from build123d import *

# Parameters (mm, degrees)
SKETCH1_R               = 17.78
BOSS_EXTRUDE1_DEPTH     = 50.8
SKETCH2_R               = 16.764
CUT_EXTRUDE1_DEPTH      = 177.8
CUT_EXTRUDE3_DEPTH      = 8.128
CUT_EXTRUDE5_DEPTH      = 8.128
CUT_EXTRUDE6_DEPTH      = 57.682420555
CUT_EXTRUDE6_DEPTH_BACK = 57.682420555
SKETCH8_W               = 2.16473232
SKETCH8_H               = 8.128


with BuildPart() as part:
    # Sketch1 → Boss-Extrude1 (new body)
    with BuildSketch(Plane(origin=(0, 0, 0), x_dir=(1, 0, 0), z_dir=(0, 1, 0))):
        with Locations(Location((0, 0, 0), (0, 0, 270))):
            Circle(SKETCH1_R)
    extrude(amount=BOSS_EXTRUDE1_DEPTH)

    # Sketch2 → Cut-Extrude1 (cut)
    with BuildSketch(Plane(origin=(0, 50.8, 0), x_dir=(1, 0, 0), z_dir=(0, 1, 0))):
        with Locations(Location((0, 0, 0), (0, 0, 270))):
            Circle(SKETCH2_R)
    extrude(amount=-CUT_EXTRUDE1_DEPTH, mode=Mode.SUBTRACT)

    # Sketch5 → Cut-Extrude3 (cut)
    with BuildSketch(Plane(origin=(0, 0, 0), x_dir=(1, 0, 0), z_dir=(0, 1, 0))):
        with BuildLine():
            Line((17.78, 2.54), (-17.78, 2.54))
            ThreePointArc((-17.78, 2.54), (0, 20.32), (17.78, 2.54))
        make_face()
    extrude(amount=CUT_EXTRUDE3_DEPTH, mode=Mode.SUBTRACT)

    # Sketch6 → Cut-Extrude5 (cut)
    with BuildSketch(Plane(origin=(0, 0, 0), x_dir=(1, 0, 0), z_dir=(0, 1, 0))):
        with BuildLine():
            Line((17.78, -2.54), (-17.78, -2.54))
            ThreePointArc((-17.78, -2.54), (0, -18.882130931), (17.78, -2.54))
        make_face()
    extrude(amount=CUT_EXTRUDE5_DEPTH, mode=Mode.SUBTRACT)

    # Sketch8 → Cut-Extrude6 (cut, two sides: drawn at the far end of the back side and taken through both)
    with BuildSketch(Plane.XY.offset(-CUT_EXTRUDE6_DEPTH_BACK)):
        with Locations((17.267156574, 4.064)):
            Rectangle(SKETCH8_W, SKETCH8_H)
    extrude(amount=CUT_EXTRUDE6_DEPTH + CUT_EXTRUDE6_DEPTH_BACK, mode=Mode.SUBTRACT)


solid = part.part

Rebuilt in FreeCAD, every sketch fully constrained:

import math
import FreeCAD as App
import Part
import Sketcher
from FreeCAD import Vector
Q = App.Units.Quantity

doc = App.newDocument("Part")
body = doc.addObject("PartDesign::Body", "Body")

# Sketch on XZ plane
sketch1 = doc.addObject("Sketcher::SketchObject", "Sketch")
body.addObject(sketch1)
sketch1.AttachmentSupport = (doc.XZ_Plane, [""])
sketch1.MapMode = "FlatFace"
sketch1.addGeometry(Part.Circle(Vector(0, 0, 0), Vector(0, 0, 1), 17.78), False)
sketch1.addConstraint([
    Sketcher.Constraint("Coincident", 0, 3, -1, 1),
    Sketcher.Constraint("Diameter", 0, Q("1.4 in")),
])
pad1 = doc.addObject("PartDesign::Pad", "Pad")
body.addObject(pad1)
pad1.Profile = sketch1
pad1.Length = Q("2 in")
pad1.Reversed = True

# Sketch on XZ plane
sketch2 = doc.addObject("Sketcher::SketchObject", "Sketch001")
body.addObject(sketch2)
sketch2.AttachmentSupport = (doc.XZ_Plane, [""])
sketch2.MapMode = "FlatFace"
sketch2.AttachmentOffset = App.Placement(Vector(0, 0, -2 * 25.4), App.Rotation())
sketch2.addGeometry(Part.Circle(Vector(0, 0, 0), Vector(0, 0, 1), 16.764), False)
sketch2.addConstraint([
    Sketcher.Constraint("Coincident", 0, 3, -1, 1),
    Sketcher.Constraint("Diameter", 0, Q("1.32 in")),
])
pocket1 = doc.addObject("PartDesign::Pocket", "Pocket")
body.addObject(pocket1)
pocket1.Profile = sketch2
pocket1.Length = Q("7 in")
pocket1.Reversed = True

# Sketch on XZ plane
sketch3 = doc.addObject("Sketcher::SketchObject", "Sketch002")
body.addObject(sketch3)
sketch3.AttachmentSupport = (doc.XZ_Plane, [""])
sketch3.MapMode = "FlatFace"
sketch3.addGeometry([
    Part.LineSegment(Vector(-17.78, -2.54, 0), Vector(17.78, -2.54, 0)),
    Part.ArcOfCircle(Part.Circle(Vector(0, -2.54, 0), Vector(0, 0, 1), 17.78), math.radians(180), math.radians(360)),
], False)
sketch3.addConstraint([
    Sketcher.Constraint("Coincident", 0, 1, 1, 1),
    Sketcher.Constraint("Coincident", 1, 2, 0, 2),
    Sketcher.Constraint("Horizontal", 0),
    Sketcher.Constraint("PointOnObject", 1, 3, -2),
    Sketcher.Constraint("Horizontal", 1, 3, 0, 1),
    Sketcher.Constraint("Radius", 1, Q("0.7 in")),
    Sketcher.Constraint("DistanceY", 1, 3, -1, 1, Q("0.1 in")),
])
pocket2 = doc.addObject("PartDesign::Pocket", "Pocket001")
body.addObject(pocket2)
pocket2.Profile = sketch3
pocket2.Length = Q("0.32 in")

# Sketch on XZ plane
sketch4 = doc.addObject("Sketcher::SketchObject", "Sketch003")
body.addObject(sketch4)
sketch4.AttachmentSupport = (doc.XZ_Plane, [""])
sketch4.MapMode = "FlatFace"
sketch4.addGeometry([
    Part.LineSegment(Vector(17.78, 2.54, 0), Vector(-17.78, 2.54, 0)),
    Part.ArcOfCircle(Part.Circle(Vector(0, 1.038875, 0), Vector(0, 0, 1), 17.843256), math.radians(4.825907), math.radians(175.174093)),
], False)
sketch4.addConstraint([
    Sketcher.Constraint("Coincident", 0, 1, 1, 1),
    Sketcher.Constraint("Coincident", 1, 2, 0, 2),
    Sketcher.Constraint("Horizontal", 0),
    Sketcher.Constraint("PointOnObject", 1, 3, -2),
    Sketcher.Constraint("DistanceX", 0, 2, 0, 1, Q("1.4 in")),
    Sketcher.Constraint("DistanceY", -1, 1, 0, 1, Q("0.1 in")),
    Sketcher.Constraint("Radius", 1, Q("17.843256 mm")),
])
pocket3 = doc.addObject("PartDesign::Pocket", "Pocket002")
body.addObject(pocket3)
pocket3.Profile = sketch4
pocket3.Length = Q("0.32 in")

# Sketch on XY plane
sketch5 = doc.addObject("Sketcher::SketchObject", "Sketch004")
body.addObject(sketch5)
sketch5.AttachmentSupport = (doc.XY_Plane, [""])
sketch5.MapMode = "FlatFace"
sketch5.addGeometry([
    Part.LineSegment(Vector(16.18479, 8.128, 0), Vector(16.18479, 0, 0)),
    Part.LineSegment(Vector(16.18479, 0, 0), Vector(18.349523, 0, 0)),
    Part.LineSegment(Vector(18.349523, 0, 0), Vector(18.349523, 8.128, 0)),
    Part.LineSegment(Vector(18.349523, 8.128, 0), Vector(16.18479, 8.128, 0)),
], False)
sketch5.addConstraint([
    Sketcher.Constraint("Coincident", 0, 2, 1, 1),
    Sketcher.Constraint("Coincident", 1, 2, 2, 1),
    Sketcher.Constraint("Coincident", 2, 2, 3, 1),
    Sketcher.Constraint("Coincident", 3, 2, 0, 1),
    Sketcher.Constraint("Vertical", 0),
    Sketcher.Constraint("Horizontal", 1),
    Sketcher.Constraint("Vertical", 2),
    Sketcher.Constraint("Horizontal", 3),
    Sketcher.Constraint("PointOnObject", 0, 2, -1),
    Sketcher.Constraint("DistanceY", 0, 2, 0, 1, Q("0.32 in")),
    Sketcher.Constraint("DistanceX", 1, 1, 1, 2, Q("2.164732 mm")),
    Sketcher.Constraint("DistanceX", -1, 1, 0, 2, Q("16.18479 mm")),
])
pocket4 = doc.addObject("PartDesign::Pocket", "Pocket003")
body.addObject(pocket4)
pocket4.Profile = sketch5
pocket4.Type = "ThroughAll"
pocket4.Midplane = True

doc.recompute()
